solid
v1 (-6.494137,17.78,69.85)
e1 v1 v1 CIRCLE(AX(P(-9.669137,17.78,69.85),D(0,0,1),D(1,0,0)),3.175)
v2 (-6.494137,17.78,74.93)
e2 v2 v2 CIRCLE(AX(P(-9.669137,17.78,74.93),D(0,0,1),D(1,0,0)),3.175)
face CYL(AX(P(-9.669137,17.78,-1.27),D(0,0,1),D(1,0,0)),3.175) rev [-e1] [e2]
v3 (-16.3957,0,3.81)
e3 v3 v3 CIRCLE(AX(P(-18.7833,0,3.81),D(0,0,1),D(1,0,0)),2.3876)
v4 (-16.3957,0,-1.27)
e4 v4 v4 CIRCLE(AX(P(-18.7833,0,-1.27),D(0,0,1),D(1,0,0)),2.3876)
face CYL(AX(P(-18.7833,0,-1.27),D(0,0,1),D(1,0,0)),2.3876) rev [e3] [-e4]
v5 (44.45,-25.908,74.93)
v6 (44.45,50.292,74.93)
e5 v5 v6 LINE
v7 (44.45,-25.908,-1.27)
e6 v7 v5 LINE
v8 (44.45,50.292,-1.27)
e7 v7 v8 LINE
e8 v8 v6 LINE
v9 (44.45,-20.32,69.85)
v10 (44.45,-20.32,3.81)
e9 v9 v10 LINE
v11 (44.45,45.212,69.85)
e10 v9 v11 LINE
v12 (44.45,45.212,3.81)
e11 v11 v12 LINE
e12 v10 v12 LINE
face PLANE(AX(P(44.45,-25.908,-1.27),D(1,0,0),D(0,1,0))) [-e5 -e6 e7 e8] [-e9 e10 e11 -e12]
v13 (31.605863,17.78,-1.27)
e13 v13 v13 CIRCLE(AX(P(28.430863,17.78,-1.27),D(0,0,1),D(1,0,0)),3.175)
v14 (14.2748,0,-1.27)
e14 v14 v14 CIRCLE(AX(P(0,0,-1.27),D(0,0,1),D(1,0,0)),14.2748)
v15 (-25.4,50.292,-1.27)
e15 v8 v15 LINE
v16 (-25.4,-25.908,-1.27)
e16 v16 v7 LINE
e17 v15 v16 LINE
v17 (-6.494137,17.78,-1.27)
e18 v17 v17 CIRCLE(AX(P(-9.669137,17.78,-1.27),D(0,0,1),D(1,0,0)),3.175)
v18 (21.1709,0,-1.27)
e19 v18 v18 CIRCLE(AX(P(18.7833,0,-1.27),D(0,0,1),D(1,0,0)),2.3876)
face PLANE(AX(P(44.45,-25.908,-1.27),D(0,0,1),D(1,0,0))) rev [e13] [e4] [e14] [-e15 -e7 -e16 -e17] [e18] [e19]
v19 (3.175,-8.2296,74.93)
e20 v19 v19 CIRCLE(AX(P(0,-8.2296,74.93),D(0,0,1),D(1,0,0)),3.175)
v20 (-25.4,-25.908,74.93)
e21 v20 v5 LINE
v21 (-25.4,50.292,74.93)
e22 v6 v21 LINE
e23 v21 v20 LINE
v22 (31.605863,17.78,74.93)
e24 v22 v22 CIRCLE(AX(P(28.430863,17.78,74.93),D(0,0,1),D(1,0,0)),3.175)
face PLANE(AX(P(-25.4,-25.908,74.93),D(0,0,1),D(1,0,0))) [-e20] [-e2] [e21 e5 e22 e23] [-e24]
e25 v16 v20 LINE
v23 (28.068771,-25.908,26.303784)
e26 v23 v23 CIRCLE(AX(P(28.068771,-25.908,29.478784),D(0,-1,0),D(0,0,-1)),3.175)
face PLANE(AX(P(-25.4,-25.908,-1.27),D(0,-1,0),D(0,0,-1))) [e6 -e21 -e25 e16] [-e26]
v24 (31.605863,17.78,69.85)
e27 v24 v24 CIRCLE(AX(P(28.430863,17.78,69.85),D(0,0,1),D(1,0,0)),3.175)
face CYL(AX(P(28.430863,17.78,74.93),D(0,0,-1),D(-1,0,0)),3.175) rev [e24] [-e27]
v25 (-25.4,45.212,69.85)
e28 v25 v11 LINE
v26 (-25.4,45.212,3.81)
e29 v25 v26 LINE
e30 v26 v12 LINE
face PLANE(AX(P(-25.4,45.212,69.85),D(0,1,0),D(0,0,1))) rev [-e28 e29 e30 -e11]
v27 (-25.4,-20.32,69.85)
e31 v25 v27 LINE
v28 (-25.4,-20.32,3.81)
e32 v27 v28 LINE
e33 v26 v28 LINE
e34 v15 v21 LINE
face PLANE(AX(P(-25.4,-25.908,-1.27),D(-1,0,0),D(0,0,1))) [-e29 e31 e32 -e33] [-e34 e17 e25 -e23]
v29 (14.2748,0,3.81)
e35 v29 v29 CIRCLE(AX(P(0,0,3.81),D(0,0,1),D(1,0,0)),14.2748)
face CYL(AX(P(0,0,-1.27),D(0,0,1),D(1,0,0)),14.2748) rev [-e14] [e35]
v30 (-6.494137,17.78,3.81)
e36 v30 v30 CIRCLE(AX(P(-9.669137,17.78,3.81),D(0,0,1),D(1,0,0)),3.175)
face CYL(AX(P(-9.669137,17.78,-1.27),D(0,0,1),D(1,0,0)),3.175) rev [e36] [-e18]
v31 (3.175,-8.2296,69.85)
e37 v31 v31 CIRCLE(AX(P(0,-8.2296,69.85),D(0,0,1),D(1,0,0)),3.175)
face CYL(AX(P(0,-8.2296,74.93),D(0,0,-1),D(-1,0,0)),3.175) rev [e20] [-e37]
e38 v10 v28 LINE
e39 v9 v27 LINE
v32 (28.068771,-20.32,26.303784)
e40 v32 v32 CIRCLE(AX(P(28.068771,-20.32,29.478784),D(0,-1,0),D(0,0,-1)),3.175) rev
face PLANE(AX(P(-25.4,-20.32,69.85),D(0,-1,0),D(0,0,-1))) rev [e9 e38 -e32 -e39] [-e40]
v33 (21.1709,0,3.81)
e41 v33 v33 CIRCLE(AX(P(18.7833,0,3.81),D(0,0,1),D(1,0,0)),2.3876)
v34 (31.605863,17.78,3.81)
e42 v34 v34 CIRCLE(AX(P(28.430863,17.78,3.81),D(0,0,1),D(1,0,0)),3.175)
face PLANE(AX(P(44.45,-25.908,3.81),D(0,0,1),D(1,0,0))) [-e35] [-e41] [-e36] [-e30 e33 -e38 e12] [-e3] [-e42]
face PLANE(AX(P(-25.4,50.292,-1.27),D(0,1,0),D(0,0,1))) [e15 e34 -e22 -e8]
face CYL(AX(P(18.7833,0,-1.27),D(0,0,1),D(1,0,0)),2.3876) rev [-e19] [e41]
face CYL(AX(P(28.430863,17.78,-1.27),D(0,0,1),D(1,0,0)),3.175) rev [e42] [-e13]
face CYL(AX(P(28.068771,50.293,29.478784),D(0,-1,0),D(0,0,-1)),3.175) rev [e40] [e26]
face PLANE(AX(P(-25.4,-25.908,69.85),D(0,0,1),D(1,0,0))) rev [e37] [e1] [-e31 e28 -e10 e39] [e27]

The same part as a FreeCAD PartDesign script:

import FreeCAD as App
import Part
import Sketcher
from FreeCAD import Vector
Q = App.Units.Quantity


def add_polygon(sketch, points):
    """Adds a closed chain of lines whose ends are joined by coincident constraints."""
    first, n = sketch.GeometryCount, len(points)
    for a, b in zip(points, points[1:] + points[:1]):
        sketch.addGeometry(Part.LineSegment(App.Vector(*a, 0), App.Vector(*b, 0)), False)
    for i in range(n):
        sketch.addConstraint(Sketcher.Constraint("Coincident", first + i, 2, first + (i + 1) % n, 1))

doc = App.newDocument("Part")
body = doc.addObject("PartDesign::Body", "Body")

sketch1 = body.newObject("Sketcher::SketchObject", "Sketch")
sketch1.AttachmentSupport = (doc.getObject("XY_Plane"), [""])
sketch1.MapMode = "FlatFace"
add_polygon(sketch1, [(-25.4, 50.292), (-25.4, -25.908), (44.45, -25.908), (44.45, 50.292)])
sketch1.addGeometry(Part.Circle(Vector(18.7833, 0, 0), Vector(0, 0, 1), 2.3876), False)
sketch1.addGeometry(Part.Circle(Vector(0, 0, 0), Vector(0, 0, 1), 14.2748), False)
sketch1.addGeometry(Part.Circle(Vector(-18.7833, 0, 0), Vector(0, 0, 1), 2.3876), False)
sketch1.addGeometry(Part.Circle(Vector(28.430863, 17.78, 0), Vector(0, 0, 1), 3.175), False)
sketch1.addConstraint(Sketcher.Constraint("Vertical", 0))
sketch1.addConstraint(Sketcher.Constraint("Horizontal", 1))
sketch1.addConstraint(Sketcher.Constraint("Vertical", 2))
sketch1.addConstraint(Sketcher.Constraint("Horizontal", 3))
sketch1.addConstraint(Sketcher.Constraint("Coincident", 5, 3, -1, 1))
sketch1.addConstraint(Sketcher.Constraint("Equal", 4, 6))
sketch1.addConstraint(Sketcher.Constraint("Symmetric", 4, 3, 6, 3, -1, 1))
sketch1.addConstraint(Sketcher.Constraint("PointOnObject", 4, 3, -1))
sketch1.addConstraint(Sketcher.Constraint("Diameter", 7, Q("0.25 in")))
sketch1.addConstraint(Sketcher.Constraint("DistanceY", 0, 2, 0, 1, Q("3 in")))
sketch1.addConstraint(Sketcher.Constraint("Diameter", 4, Q("0.188 in")))
sketch1.addConstraint(Sketcher.Constraint("Diameter", 5, Q("1.124 in")))
sketch1.addConstraint(Sketcher.Constraint("DistanceX", 0, 2, -1, 1, Q("1 in")))
sketch1.addConstraint(Sketcher.Constraint("DistanceX", 1, 1, 1, 2, Q("2.75 in")))
sketch1.addConstraint(Sketcher.Constraint("DistanceY", -1, 1, 7, 3, Q("0.7 in")))
sketch1.addConstraint(Sketcher.Constraint("DistanceY", 0, 2, -1, 1, Q("1.02 in")))
sketch1.addConstraint(Sketcher.Constraint("DistanceX", 6, 3, 4, 3, Q("1.479 in")))
sketch1.addConstraint(Sketcher.Constraint("DistanceX", -1, 1, 7, 3, Q("28.430863 mm")))
pad1 = body.newObject("PartDesign::Pad", "Pad")
pad1.Profile = sketch1
pad1.Type = "TwoLengths"
pad1.Length = Q("0.15 in")
pad1.Length2 = Q("0.05 in")

sketch2 = body.newObject("Sketcher::SketchObject", "Sketch001")
sketch2.AttachmentSupport = (doc.getObject("XY_Plane"), [""])
sketch2.MapMode = "FlatFace"
sketch2.AttachmentOffset = App.Placement(Vector(0, 0, 0.15 * 25.4), App.Rotation())
add_polygon(sketch2, [(-25.4, 50.292), (-25.4, 45.212), (44.45, 45.212), (44.45, 50.292)])
sketch2.addConstraint(Sketcher.Constraint("Vertical", 0))
sketch2.addConstraint(Sketcher.Constraint("Horizontal", 1))
sketch2.addConstraint(Sketcher.Constraint("Vertical", 2))
sketch2.addConstraint(Sketcher.Constraint("Horizontal", 3))
sketch2.addConstraint(Sketcher.Constraint("DistanceY", 0, 2, 0, 1, Q("0.2 in")))
sketch2.addConstraint(Sketcher.Constraint("DistanceX", 0, 2, -1, 1, Q("1 in")))
sketch2.addConstraint(Sketcher.Constraint("DistanceX", 1, 1, 1, 2, Q("2.75 in")))
sketch2.addConstraint(Sketcher.Constraint("DistanceY", -1, 1, 0, 2, Q("1.78 in")))
pad2 = body.newObject("PartDesign::Pad", "Pad001")
pad2.Profile = sketch2
pad2.Length = Q("2.6 in")

sketch3 = body.newObject("Sketcher::SketchObject", "Sketch002")
sketch3.AttachmentSupport = (doc.getObject("XY_Plane"), [""])
sketch3.MapMode = "FlatFace"
sketch3.AttachmentOffset = App.Placement(Vector(0, 0, 0.15 * 25.4), App.Rotation())
add_polygon(sketch3, [(-25.4, -20.32), (-25.4, -25.908), (44.45, -25.908), (44.45, -20.32)])
sketch3.addConstraint(Sketcher.Constraint("Vertical", 0))
sketch3.addConstraint(Sketcher.Constraint("Horizontal", 1))
sketch3.addConstraint(Sketcher.Constraint("Vertical", 2))
sketch3.addConstraint(Sketcher.Constraint("Horizontal", 3))
sketch3.addConstraint(Sketcher.Constraint("DistanceX", 0, 2, -1, 1, Q("1 in")))
sketch3.addConstraint(Sketcher.Constraint("DistanceX", 1, 1, 1, 2, Q("2.75 in")))
sketch3.addConstraint(Sketcher.Constraint("DistanceY", 0, 2, 0, 1, Q("0.22 in")))
sketch3.addConstraint(Sketcher.Constraint("DistanceY", 2, 2, -1, 1, Q("0.8 in")))
pad3 = body.newObject("PartDesign::Pad", "Pad002")
pad3.Profile = sketch3
pad3.Length = Q("2.6 in")

sketch4 = body.newObject("Sketcher::SketchObject", "Sketch003")
sketch4.AttachmentSupport = (doc.getObject("XY_Plane"), [""])
sketch4.MapMode = "FlatFace"
sketch4.AttachmentOffset = App.Placement(Vector(0, 0, 2.75 * 25.4), App.Rotation())
add_polygon(sketch4, [(-25.4, 50.292), (-25.4, -25.908), (44.45, -25.908), (44.45, 50.292)])
sketch4.addGeometry(Part.Circle(Vector(0, -8.2296, 0), Vector(0, 0, 1), 3.175), False)
sketch4.addGeometry(Part.Circle(Vector(28.430863, 17.78, 0), Vector(0, 0, 1), 3.175), False)
sketch4.addConstraint(Sketcher.Constraint("Vertical", 0))
sketch4.addConstraint(Sketcher.Constraint("Horizontal", 1))
sketch4.addConstraint(Sketcher.Constraint("Vertical", 2))
sketch4.addConstraint(Sketcher.Constraint("Horizontal", 3))
sketch4.addConstraint(Sketcher.Constraint("Equal", 4, 5))
sketch4.addConstraint(Sketcher.Constraint("PointOnObject", 4, 3, -2))
sketch4.addConstraint(Sketcher.Constraint("Diameter", 4, Q("0.25 in")))
sketch4.addConstraint(Sketcher.Constraint("DistanceY", 0, 2, 0, 1, Q("3 in")))
sketch4.addConstraint(Sketcher.Constraint("DistanceX", 0, 2, -1, 1, Q("1 in")))
sketch4.addConstraint(Sketcher.Constraint("DistanceX", 1, 1, 1, 2, Q("2.75 in")))
sketch4.addConstraint(Sketcher.Constraint("DistanceY", -1, 1, 5, 3, Q("0.7 in")))
sketch4.addConstraint(Sketcher.Constraint("DistanceY", 0, 2, -1, 1, Q("1.02 in")))
sketch4.addConstraint(Sketcher.Constraint("DistanceY", 4, 3, -1, 1, Q("0.324 in")))
sketch4.addConstraint(Sketcher.Constraint("DistanceX", -1, 1, 5, 3, Q("28.430863 mm")))
pad4 = body.newObject("PartDesign::Pad", "Pad003")
pad4.Profile = sketch4
pad4.Length = Q("0.2 in")

sketch5 = body.newObject("Sketcher::SketchObject", "Sketch004")
sketch5.AttachmentSupport = (doc.getObject("XZ_Plane"), [""])
sketch5.MapMode = "FlatFace"
sketch5.AttachmentOffset = App.Placement(Vector(0, 0, 1.02 * 25.4), App.Rotation())
sketch5.addGeometry(Part.Circle(Vector(28.068771, 29.478784, 0), Vector(0, 0, 1), 3.175), False)
sketch5.addConstraint(Sketcher.Constraint("Diameter", 0, Q("0.25 in")))
sketch5.addConstraint(Sketcher.Constraint("DistanceX", -1, 1, 0, 3, Q("28.068771 mm")))
sketch5.addConstraint(Sketcher.Constraint("DistanceY", -1, 1, 0, 3, Q("29.478784 mm")))
pocket1 = body.newObject("PartDesign::Pocket", "Pocket")
pocket1.Profile = sketch5
pocket1.Type = "UpToFirst"

sketch6 = body.newObject("Sketcher::SketchObject", "Sketch005")
sketch6.AttachmentSupport = (doc.getObject("XY_Plane"), [""])
sketch6.MapMode = "FlatFace"
sketch6.AttachmentOffset = App.Placement(Vector(0, 0, 2.95 * 25.4), App.Rotation())
sketch6.addGeometry(Part.Circle(Vector(-9.669137, 17.78, 0), Vector(0, 0, 1), 3.175), False)
sketch6.addConstraint(Sketcher.Constraint("Diameter", 0, Q("0.25 in")))
sketch6.addConstraint(Sketcher.Constraint("DistanceY", -1, 1, 0, 3, Q("0.7 in")))
sketch6.addConstraint(Sketcher.Constraint("DistanceX", 0, 3, -1, 1, Q("9.669137 mm")))
pocket2 = body.newObject("PartDesign::Pocket", "Pocket001")
pocket2.Profile = sketch6
pocket2.Type = "ThroughAll"

doc.recompute()
